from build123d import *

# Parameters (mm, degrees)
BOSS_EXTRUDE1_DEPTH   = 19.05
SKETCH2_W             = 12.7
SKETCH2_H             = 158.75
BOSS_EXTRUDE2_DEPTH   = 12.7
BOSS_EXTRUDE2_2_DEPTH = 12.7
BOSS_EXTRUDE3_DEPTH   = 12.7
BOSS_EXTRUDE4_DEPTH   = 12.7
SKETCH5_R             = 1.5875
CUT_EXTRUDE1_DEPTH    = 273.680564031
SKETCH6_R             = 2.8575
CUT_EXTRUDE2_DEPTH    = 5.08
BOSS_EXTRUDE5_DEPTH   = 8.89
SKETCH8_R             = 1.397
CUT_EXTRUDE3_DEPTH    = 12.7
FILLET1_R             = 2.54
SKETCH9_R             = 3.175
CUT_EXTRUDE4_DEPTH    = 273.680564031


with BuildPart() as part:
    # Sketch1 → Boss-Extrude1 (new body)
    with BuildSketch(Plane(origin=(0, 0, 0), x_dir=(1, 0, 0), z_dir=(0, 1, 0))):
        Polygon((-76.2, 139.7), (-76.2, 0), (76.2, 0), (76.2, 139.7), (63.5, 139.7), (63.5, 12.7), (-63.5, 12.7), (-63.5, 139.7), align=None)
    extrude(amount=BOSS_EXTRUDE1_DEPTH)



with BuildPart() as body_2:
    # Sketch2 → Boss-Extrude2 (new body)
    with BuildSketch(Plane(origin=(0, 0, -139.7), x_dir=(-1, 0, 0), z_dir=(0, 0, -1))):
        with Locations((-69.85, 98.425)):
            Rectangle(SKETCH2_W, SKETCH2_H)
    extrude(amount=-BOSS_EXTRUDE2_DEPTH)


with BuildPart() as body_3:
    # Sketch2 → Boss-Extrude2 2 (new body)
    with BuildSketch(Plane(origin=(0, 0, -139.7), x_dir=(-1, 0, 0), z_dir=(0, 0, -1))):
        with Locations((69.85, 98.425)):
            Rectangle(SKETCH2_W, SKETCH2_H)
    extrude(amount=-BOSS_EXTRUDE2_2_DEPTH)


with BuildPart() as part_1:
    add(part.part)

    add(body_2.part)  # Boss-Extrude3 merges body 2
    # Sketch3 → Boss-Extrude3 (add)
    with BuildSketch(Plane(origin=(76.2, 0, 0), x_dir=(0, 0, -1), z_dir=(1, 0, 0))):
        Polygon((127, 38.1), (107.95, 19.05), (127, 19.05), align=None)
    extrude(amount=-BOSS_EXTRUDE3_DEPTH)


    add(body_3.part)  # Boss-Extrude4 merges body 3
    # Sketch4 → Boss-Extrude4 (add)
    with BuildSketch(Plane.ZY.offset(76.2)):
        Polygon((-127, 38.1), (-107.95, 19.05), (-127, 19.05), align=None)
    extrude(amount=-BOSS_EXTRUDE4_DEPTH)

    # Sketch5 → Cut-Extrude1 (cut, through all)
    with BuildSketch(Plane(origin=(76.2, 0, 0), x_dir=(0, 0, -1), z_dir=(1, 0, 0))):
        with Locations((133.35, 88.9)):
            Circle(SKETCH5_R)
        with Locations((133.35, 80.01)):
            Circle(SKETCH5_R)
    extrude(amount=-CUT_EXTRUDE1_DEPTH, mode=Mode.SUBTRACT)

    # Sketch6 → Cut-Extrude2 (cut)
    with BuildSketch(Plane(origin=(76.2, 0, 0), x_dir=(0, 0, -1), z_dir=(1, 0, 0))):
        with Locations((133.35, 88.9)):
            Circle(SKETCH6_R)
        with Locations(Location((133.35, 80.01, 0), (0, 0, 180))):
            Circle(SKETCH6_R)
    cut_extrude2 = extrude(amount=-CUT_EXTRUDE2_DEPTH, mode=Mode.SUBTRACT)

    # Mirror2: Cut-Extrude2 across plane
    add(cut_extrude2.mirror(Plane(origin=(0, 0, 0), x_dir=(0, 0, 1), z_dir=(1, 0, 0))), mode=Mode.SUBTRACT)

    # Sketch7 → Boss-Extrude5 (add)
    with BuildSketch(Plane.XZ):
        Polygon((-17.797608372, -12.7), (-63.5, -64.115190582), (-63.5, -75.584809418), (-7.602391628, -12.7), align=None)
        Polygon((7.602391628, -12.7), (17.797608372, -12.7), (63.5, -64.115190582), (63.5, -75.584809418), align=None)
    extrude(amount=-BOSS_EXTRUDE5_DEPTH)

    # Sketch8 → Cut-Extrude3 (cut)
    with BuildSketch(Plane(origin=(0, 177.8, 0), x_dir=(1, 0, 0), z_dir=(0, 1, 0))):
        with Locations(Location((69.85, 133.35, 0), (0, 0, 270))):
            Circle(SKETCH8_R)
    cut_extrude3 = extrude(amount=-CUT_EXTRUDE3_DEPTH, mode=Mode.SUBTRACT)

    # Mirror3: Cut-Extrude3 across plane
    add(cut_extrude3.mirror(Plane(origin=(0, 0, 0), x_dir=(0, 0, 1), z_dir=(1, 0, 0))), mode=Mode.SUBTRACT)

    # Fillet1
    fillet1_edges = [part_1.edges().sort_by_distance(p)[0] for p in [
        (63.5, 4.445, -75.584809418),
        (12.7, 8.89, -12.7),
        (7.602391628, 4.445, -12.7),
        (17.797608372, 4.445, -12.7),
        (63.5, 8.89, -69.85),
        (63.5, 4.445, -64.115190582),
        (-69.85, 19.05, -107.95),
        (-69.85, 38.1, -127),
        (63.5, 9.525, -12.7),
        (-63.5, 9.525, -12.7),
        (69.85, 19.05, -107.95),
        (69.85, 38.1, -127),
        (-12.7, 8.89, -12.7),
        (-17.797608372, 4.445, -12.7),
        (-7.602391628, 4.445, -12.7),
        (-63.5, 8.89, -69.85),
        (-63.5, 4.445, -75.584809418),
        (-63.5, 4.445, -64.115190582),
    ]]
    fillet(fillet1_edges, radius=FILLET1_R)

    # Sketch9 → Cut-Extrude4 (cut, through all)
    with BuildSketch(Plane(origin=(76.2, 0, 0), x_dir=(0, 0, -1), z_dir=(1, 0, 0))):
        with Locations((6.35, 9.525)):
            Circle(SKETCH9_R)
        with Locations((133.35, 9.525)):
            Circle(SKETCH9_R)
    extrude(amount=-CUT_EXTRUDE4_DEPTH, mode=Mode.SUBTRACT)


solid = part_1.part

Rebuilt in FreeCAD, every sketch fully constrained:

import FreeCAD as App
import Part
import Sketcher
Q = App.Units.Quantity


def edges_at(feature, points):
    """Names of the edges that pass closest to the given points."""
    edges = feature.Shape.Edges
    near = lambda p: min(range(len(edges)), key=lambda i: edges[i].distToShape(Part.Vertex(*p))[0])
    return sorted({f"Edge{near(p) + 1}" for p in points})


def add_polygon(sketch, points):
    """Adds a closed chain of lines whose ends are joined by coincident constraints."""
    first, n = sketch.GeometryCount, len(points)
    for a, b in zip(points, points[1:] + points[:1]):
        sketch.addGeometry(Part.LineSegment(App.Vector(*a, 0), App.Vector(*b, 0)), False)
    for i in range(n):
        sketch.addConstraint(Sketcher.Constraint("Coincident", first + i, 2, first + (i + 1) % n, 1))

doc = App.newDocument("Part")
body = doc.addObject("PartDesign::Body", "Body")

sketch1 = body.newObject("Sketcher::SketchObject", "Sketch")
sketch1.AttachmentSupport = (doc.getObject("XZ_Plane"), [""])
sketch1.MapMode = "FlatFace"
add_polygon(sketch1, [(-76.2, -139.7), (-76.2, 0), (76.2, 0), (76.2, -139.7), (63.5, -139.7), (63.5, -12.7), (-63.5, -12.7), (-63.5, -139.7)])
sketch1.addConstraint([
    Sketcher.Constraint("Vertical", 0),
    Sketcher.Constraint("Horizontal", 1),
    Sketcher.Constraint("Vertical", 2),
    Sketcher.Constraint("Horizontal", 3),
    Sketcher.Constraint("Vertical", 4),
    Sketcher.Constraint("Horizontal", 5),
    Sketcher.Constraint("Vertical", 6),
    Sketcher.Constraint("Horizontal", 7),
    Sketcher.Constraint("Symmetric", 0, 2, 1, 2, -1, 1),
    Sketcher.Constraint("Symmetric", 3, 2, 6, 2, -2),
    Sketcher.Constraint("Equal", 5, 4),
    Sketcher.Constraint("DistanceX", 1, 1, 1, 2, Q("6 in")),
    Sketcher.Constraint("DistanceX", 5, 2, 5, 1, Q("5 in")),
    Sketcher.Constraint("DistanceY", 0, 1, 0, 2, Q("5.5 in")),
])
pad1 = body.newObject("PartDesign::Pad", "Pad")
pad1.Profile = sketch1
pad1.Length = Q("0.75 in")
pad1.Reversed = True
body2 = doc.addObject("PartDesign::Body", "Body001")

sketch2 = body2.newObject("Sketcher::SketchObject", "Sketch001")
sketch2.AttachmentSupport = (doc.getObject("XY_Plane001"), [""])
sketch2.MapMode = "FlatFace"
sketch2.AttachmentOffset = App.Placement(App.Vector(0, 0, -5.5 * 25.4), App.Rotation())
add_polygon(sketch2, [(76.2, 177.8), (76.2, 19.05), (63.5, 19.05), (63.5, 177.8)])
sketch2.addConstraint([
    Sketcher.Constraint("Vertical", 0),
    Sketcher.Constraint("Horizontal", 1),
    Sketcher.Constraint("Vertical", 2),
    Sketcher.Constraint("Horizontal", 3),
    Sketcher.Constraint("DistanceX", 1, 2, 1, 1, Q("0.5 in")),
    Sketcher.Constraint("DistanceX", -1, 1, 0, 2, Q("3 in")),
    Sketcher.Constraint("DistanceY", -1, 1, 2, 2, Q("7 in")),
    Sketcher.Constraint("DistanceY", 0, 2, 0, 1, Q("6.25 in")),
])
pad2 = body2.newObject("PartDesign::Pad", "Pad001")
pad2.Profile = sketch2
pad2.Length = Q("0.5 in")
body3 = doc.addObject("PartDesign::Body", "Body002")

sketch3 = body3.newObject("Sketcher::SketchObject", "Sketch002")
sketch3.AttachmentSupport = (doc.getObject("XY_Plane002"), [""])
sketch3.MapMode = "FlatFace"
sketch3.AttachmentOffset = App.Placement(App.Vector(0, 0, -5.5 * 25.4), App.Rotation())
add_polygon(sketch3, [(-63.5, 177.8), (-63.5, 19.05), (-76.2, 19.05), (-76.2, 177.8)])
sketch3.addConstraint([
    Sketcher.Constraint("Vertical", 0),
    Sketcher.Constraint("Horizontal", 1),
    Sketcher.Constraint("Vertical", 2),
    Sketcher.Constraint("Horizontal", 3),
    Sketcher.Constraint("DistanceX", 1, 2, 1, 1, Q("0.5 in")),
    Sketcher.Constraint("DistanceX", 1, 2, -1, 1, Q("3 in")),
    Sketcher.Constraint("DistanceY", -1, 1, 2, 2, Q("7 in")),
    Sketcher.Constraint("DistanceY", 0, 2, 0, 1, Q("6.25 in")),
])
pad3 = body3.newObject("PartDesign::Pad", "Pad002")
pad3.Profile = sketch3
pad3.Length = Q("0.5 in")
doc.recompute()

boolean = body.newObject("PartDesign::Boolean", "Boolean")
boolean.Type = "Fuse"
boolean.addObjects([body2])

sketch4 = body.newObject("Sketcher::SketchObject", "Sketch003")
sketch4.AttachmentSupport = (doc.getObject("YZ_Plane"), [""])
sketch4.MapMode = "FlatFace"
sketch4.AttachmentOffset = App.Placement(App.Vector(0, 0, 3 * 25.4), App.Rotation())
add_polygon(sketch4, [(38.1, -127), (19.05, -107.95), (19.05, -127)])
sketch4.addConstraint([
    Sketcher.Constraint("Vertical", 1),
    Sketcher.Constraint("Horizontal", 2),
    Sketcher.Constraint("Equal", 2, 1),
    Sketcher.Constraint("DistanceY", 1, 2, -1, 1, Q("5 in")),
    Sketcher.Constraint("DistanceX", 2, 1, 2, 2, Q("0.75 in")),
    Sketcher.Constraint("DistanceX", -1, 1, 2, 2, Q("1.5 in")),
])
pad4 = body.newObject("PartDesign::Pad", "Pad003")
pad4.Profile = sketch4
pad4.Length = Q("0.5 in")
pad4.Reversed = True
doc.recompute()

boolean2 = body.newObject("PartDesign::Boolean", "Boolean001")
boolean2.Type = "Fuse"
boolean2.addObjects([body3])

sketch5 = body.newObject("Sketcher::SketchObject", "Sketch004")
sketch5.AttachmentSupport = (doc.getObject("YZ_Plane"), [""])
sketch5.MapMode = "FlatFace"
sketch5.AttachmentOffset = App.Placement(App.Vector(0, 0, -3 * 25.4), App.Rotation())
add_polygon(sketch5, [(19.05, -107.95), (38.1, -127), (19.05, -127)])
sketch5.addConstraint([
    Sketcher.Constraint("Horizontal", 1),
    Sketcher.Constraint("Vertical", 2),
    Sketcher.Constraint("Equal", 1, 2),
    Sketcher.Constraint("DistanceY", 0, 2, -1, 1, Q("5 in")),
    Sketcher.Constraint("DistanceX", 1, 2, 1, 1, Q("0.75 in")),
    Sketcher.Constraint("DistanceX", -1, 1, 0, 2, Q("1.5 in")),
])
pad5 = body.newObject("PartDesign::Pad", "Pad004")
pad5.Profile = sketch5
pad5.Length = Q("0.5 in")

sketch6 = body.newObject("Sketcher::SketchObject", "Sketch005")
sketch6.AttachmentSupport = (doc.getObject("YZ_Plane"), [""])
sketch6.MapMode = "FlatFace"
sketch6.AttachmentOffset = App.Placement(App.Vector(0, 0, 3 * 25.4), App.Rotation())
sketch6.addGeometry([
    Part.Circle(App.Vector(88.9, -133.35, 0), App.Vector(0, 0, 1), 1.5875),
    Part.Circle(App.Vector(80.01, -133.35, 0), App.Vector(0, 0, 1), 1.5875),
], False)
sketch6.addConstraint([
    Sketcher.Constraint("Equal", 0, 1),
    Sketcher.Constraint("Horizontal", 0, 3, 1, 3),
    Sketcher.Constraint("Diameter", 0, Q("0.125 in")),
    Sketcher.Constraint("DistanceX", -1, 1, 0, 3, Q("3.5 in")),
    Sketcher.Constraint("DistanceY", 0, 3, -1, 1, Q("5.25 in")),
    Sketcher.Constraint("DistanceX", -1, 1, 1, 3, Q("3.15 in")),
])
pocket1 = body.newObject("PartDesign::Pocket", "Pocket")
pocket1.Profile = sketch6
pocket1.Type = "ThroughAll"

sketch7 = body.newObject("Sketcher::SketchObject", "Sketch006")
sketch7.AttachmentSupport = (doc.getObject("YZ_Plane"), [""])
sketch7.MapMode = "FlatFace"
sketch7.AttachmentOffset = App.Placement(App.Vector(0, 0, 3 * 25.4), App.Rotation())
sketch7.addGeometry([
    Part.Circle(App.Vector(88.9, -133.35, 0), App.Vector(0, 0, 1), 2.8575),
    Part.Circle(App.Vector(80.01, -133.35, 0), App.Vector(0, 0, 1), 2.8575),
], False)
sketch7.addConstraint([
    Sketcher.Constraint("Equal", 0, 1),
    Sketcher.Constraint("Horizontal", 0, 3, 1, 3),
    Sketcher.Constraint("Diameter", 0, Q("0.225 in")),
    Sketcher.Constraint("DistanceX", -1, 1, 0, 3, Q("3.5 in")),
    Sketcher.Constraint("DistanceY", 0, 3, -1, 1, Q("5.25 in")),
    Sketcher.Constraint("DistanceX", -1, 1, 1, 3, Q("3.15 in")),
])
pocket2 = body.newObject("PartDesign::Pocket", "Pocket001")
pocket2.Profile = sketch7
pocket2.Length = Q("0.2 in")
doc.recompute()

mirrored = body.newObject("PartDesign::Mirrored", "Mirrored")
mirrored.Originals = [pocket2]
mirrored.MirrorPlane = (doc.getObject("YZ_Plane"), [""])
body.Tip = mirrored

sketch8 = body.newObject("Sketcher::SketchObject", "Sketch007")
sketch8.AttachmentSupport = (doc.getObject("XZ_Plane"), [""])
sketch8.MapMode = "FlatFace"
add_polygon(sketch8, [(-17.797608, -12.7), (-63.5, -64.115191), (-63.5, -75.584809), (-7.602392, -12.7)])
add_polygon(sketch8, [(17.797608, -12.7), (7.602392, -12.7), (63.5, -75.584809), (63.5, -64.115191)])
sketch8.addConstraint([
    Sketcher.Constraint("Vertical", 1),
    Sketcher.Constraint("Horizontal", 3),
    Sketcher.Constraint("Horizontal", 4),
    Sketcher.Constraint("Vertical", 6),
    Sketcher.Constraint("Symmetric", 2, 2, 4, 2, -2),
    Sketcher.Constraint("Symmetric", 1, 2, 5, 2, -2),
    Sketcher.Constraint("Parallel", 0, 2),
    Sketcher.Constraint("Parallel", 5, 7),
    Sketcher.Constraint("Horizontal", 0, 2, 6, 2),
    Sketcher.Constraint("DistanceX", 3, 2, 4, 2, Q("1 in")),
    Sketcher.Constraint("DistanceX", 1, 2, 5, 2, Q("5 in")),
    Sketcher.Constraint("DistanceY", 2, 2, -1, 1, Q("0.5 in")),
    Sketcher.Constraint("DistanceY", 1, 2, 1, 1, Q("11.469619 mm")),
    Sketcher.Constraint("Distance", 0, Q("68.791209 mm")),
])
pad6 = body.newObject("PartDesign::Pad", "Pad005")
pad6.Profile = sketch8
pad6.Length = Q("0.35 in")
pad6.Reversed = True

sketch9 = body.newObject("Sketcher::SketchObject", "Sketch008")
sketch9.AttachmentSupport = (doc.getObject("XZ_Plane"), [""])
sketch9.MapMode = "FlatFace"
sketch9.AttachmentOffset = App.Placement(App.Vector(0, 0, -7 * 25.4), App.Rotation())
sketch9.addGeometry(Part.Circle(App.Vector(69.85, -133.35, 0), App.Vector(0, 0, 1), 1.397), False)
sketch9.addConstraint([
    Sketcher.Constraint("Diameter", 0, Q("0.11 in")),
    Sketcher.Constraint("DistanceX", -1, 1, 0, 3, Q("2.75 in")),
    Sketcher.Constraint("DistanceY", 0, 3, -1, 1, Q("5.25 in")),
])
pocket3 = body.newObject("PartDesign::Pocket", "Pocket002")
pocket3.Profile = sketch9
pocket3.Length = Q("0.5 in")
pocket3.Reversed = True
doc.recompute()

mirrored2 = body.newObject("PartDesign::Mirrored", "Mirrored001")
mirrored2.Originals = [pocket3]
mirrored2.MirrorPlane = (doc.getObject("YZ_Plane"), [""])
body.Tip = mirrored2
doc.recompute()

fillet = body.newObject("PartDesign::Fillet", "Fillet")
fillet.Base = (mirrored2, edges_at(mirrored2, [
    (63.5, 4.445, -75.585),
    (12.7, 8.89, -12.7),
    (7.602, 4.445, -12.7),
    (17.798, 4.445, -12.7),
    (63.5, 8.89, -69.85),
    (63.5, 4.445, -64.115),
    (-69.85, 19.05, -107.95),
    (-69.85, 38.1, -127),
    (63.5, 9.525, -12.7),
    (-63.5, 9.525, -12.7),
    (69.85, 19.05, -107.95),
    (69.85, 38.1, -127),
    (-12.7, 8.89, -12.7),
    (-17.798, 4.445, -12.7),
    (-7.602, 4.445, -12.7),
    (-63.5, 8.89, -69.85),
    (-63.5, 4.445, -75.585),
    (-63.5, 4.445, -64.115),
]))
fillet.Radius = Q("0.1 in")

sketch10 = body.newObject("Sketcher::SketchObject", "Sketch009")
sketch10.AttachmentSupport = (doc.getObject("YZ_Plane"), [""])
sketch10.MapMode = "FlatFace"
sketch10.AttachmentOffset = App.Placement(App.Vector(0, 0, 3 * 25.4), App.Rotation())
sketch10.addGeometry([
    Part.Circle(App.Vector(9.525, -6.35, 0), App.Vector(0, 0, 1), 3.175),
    Part.Circle(App.Vector(9.525, -133.35, 0), App.Vector(0, 0, 1), 3.175),
], False)
sketch10.addConstraint([
    Sketcher.Constraint("Equal", 0, 1),
    Sketcher.Constraint("Vertical", 0, 3, 1, 3),
    Sketcher.Constraint("Diameter", 0, Q("0.25 in")),
    Sketcher.Constraint("DistanceY", 1, 3, 0, 3, Q("5 in")),
    Sketcher.Constraint("DistanceY", 0, 3, -1, 1, Q("0.25 in")),
    Sketcher.Constraint("DistanceX", -1, 1, 0, 3, Q("0.375 in")),
])
pocket4 = body.newObject("PartDesign::Pocket", "Pocket003")
pocket4.Profile = sketch10
pocket4.Type = "ThroughAll"

doc.recompute()
